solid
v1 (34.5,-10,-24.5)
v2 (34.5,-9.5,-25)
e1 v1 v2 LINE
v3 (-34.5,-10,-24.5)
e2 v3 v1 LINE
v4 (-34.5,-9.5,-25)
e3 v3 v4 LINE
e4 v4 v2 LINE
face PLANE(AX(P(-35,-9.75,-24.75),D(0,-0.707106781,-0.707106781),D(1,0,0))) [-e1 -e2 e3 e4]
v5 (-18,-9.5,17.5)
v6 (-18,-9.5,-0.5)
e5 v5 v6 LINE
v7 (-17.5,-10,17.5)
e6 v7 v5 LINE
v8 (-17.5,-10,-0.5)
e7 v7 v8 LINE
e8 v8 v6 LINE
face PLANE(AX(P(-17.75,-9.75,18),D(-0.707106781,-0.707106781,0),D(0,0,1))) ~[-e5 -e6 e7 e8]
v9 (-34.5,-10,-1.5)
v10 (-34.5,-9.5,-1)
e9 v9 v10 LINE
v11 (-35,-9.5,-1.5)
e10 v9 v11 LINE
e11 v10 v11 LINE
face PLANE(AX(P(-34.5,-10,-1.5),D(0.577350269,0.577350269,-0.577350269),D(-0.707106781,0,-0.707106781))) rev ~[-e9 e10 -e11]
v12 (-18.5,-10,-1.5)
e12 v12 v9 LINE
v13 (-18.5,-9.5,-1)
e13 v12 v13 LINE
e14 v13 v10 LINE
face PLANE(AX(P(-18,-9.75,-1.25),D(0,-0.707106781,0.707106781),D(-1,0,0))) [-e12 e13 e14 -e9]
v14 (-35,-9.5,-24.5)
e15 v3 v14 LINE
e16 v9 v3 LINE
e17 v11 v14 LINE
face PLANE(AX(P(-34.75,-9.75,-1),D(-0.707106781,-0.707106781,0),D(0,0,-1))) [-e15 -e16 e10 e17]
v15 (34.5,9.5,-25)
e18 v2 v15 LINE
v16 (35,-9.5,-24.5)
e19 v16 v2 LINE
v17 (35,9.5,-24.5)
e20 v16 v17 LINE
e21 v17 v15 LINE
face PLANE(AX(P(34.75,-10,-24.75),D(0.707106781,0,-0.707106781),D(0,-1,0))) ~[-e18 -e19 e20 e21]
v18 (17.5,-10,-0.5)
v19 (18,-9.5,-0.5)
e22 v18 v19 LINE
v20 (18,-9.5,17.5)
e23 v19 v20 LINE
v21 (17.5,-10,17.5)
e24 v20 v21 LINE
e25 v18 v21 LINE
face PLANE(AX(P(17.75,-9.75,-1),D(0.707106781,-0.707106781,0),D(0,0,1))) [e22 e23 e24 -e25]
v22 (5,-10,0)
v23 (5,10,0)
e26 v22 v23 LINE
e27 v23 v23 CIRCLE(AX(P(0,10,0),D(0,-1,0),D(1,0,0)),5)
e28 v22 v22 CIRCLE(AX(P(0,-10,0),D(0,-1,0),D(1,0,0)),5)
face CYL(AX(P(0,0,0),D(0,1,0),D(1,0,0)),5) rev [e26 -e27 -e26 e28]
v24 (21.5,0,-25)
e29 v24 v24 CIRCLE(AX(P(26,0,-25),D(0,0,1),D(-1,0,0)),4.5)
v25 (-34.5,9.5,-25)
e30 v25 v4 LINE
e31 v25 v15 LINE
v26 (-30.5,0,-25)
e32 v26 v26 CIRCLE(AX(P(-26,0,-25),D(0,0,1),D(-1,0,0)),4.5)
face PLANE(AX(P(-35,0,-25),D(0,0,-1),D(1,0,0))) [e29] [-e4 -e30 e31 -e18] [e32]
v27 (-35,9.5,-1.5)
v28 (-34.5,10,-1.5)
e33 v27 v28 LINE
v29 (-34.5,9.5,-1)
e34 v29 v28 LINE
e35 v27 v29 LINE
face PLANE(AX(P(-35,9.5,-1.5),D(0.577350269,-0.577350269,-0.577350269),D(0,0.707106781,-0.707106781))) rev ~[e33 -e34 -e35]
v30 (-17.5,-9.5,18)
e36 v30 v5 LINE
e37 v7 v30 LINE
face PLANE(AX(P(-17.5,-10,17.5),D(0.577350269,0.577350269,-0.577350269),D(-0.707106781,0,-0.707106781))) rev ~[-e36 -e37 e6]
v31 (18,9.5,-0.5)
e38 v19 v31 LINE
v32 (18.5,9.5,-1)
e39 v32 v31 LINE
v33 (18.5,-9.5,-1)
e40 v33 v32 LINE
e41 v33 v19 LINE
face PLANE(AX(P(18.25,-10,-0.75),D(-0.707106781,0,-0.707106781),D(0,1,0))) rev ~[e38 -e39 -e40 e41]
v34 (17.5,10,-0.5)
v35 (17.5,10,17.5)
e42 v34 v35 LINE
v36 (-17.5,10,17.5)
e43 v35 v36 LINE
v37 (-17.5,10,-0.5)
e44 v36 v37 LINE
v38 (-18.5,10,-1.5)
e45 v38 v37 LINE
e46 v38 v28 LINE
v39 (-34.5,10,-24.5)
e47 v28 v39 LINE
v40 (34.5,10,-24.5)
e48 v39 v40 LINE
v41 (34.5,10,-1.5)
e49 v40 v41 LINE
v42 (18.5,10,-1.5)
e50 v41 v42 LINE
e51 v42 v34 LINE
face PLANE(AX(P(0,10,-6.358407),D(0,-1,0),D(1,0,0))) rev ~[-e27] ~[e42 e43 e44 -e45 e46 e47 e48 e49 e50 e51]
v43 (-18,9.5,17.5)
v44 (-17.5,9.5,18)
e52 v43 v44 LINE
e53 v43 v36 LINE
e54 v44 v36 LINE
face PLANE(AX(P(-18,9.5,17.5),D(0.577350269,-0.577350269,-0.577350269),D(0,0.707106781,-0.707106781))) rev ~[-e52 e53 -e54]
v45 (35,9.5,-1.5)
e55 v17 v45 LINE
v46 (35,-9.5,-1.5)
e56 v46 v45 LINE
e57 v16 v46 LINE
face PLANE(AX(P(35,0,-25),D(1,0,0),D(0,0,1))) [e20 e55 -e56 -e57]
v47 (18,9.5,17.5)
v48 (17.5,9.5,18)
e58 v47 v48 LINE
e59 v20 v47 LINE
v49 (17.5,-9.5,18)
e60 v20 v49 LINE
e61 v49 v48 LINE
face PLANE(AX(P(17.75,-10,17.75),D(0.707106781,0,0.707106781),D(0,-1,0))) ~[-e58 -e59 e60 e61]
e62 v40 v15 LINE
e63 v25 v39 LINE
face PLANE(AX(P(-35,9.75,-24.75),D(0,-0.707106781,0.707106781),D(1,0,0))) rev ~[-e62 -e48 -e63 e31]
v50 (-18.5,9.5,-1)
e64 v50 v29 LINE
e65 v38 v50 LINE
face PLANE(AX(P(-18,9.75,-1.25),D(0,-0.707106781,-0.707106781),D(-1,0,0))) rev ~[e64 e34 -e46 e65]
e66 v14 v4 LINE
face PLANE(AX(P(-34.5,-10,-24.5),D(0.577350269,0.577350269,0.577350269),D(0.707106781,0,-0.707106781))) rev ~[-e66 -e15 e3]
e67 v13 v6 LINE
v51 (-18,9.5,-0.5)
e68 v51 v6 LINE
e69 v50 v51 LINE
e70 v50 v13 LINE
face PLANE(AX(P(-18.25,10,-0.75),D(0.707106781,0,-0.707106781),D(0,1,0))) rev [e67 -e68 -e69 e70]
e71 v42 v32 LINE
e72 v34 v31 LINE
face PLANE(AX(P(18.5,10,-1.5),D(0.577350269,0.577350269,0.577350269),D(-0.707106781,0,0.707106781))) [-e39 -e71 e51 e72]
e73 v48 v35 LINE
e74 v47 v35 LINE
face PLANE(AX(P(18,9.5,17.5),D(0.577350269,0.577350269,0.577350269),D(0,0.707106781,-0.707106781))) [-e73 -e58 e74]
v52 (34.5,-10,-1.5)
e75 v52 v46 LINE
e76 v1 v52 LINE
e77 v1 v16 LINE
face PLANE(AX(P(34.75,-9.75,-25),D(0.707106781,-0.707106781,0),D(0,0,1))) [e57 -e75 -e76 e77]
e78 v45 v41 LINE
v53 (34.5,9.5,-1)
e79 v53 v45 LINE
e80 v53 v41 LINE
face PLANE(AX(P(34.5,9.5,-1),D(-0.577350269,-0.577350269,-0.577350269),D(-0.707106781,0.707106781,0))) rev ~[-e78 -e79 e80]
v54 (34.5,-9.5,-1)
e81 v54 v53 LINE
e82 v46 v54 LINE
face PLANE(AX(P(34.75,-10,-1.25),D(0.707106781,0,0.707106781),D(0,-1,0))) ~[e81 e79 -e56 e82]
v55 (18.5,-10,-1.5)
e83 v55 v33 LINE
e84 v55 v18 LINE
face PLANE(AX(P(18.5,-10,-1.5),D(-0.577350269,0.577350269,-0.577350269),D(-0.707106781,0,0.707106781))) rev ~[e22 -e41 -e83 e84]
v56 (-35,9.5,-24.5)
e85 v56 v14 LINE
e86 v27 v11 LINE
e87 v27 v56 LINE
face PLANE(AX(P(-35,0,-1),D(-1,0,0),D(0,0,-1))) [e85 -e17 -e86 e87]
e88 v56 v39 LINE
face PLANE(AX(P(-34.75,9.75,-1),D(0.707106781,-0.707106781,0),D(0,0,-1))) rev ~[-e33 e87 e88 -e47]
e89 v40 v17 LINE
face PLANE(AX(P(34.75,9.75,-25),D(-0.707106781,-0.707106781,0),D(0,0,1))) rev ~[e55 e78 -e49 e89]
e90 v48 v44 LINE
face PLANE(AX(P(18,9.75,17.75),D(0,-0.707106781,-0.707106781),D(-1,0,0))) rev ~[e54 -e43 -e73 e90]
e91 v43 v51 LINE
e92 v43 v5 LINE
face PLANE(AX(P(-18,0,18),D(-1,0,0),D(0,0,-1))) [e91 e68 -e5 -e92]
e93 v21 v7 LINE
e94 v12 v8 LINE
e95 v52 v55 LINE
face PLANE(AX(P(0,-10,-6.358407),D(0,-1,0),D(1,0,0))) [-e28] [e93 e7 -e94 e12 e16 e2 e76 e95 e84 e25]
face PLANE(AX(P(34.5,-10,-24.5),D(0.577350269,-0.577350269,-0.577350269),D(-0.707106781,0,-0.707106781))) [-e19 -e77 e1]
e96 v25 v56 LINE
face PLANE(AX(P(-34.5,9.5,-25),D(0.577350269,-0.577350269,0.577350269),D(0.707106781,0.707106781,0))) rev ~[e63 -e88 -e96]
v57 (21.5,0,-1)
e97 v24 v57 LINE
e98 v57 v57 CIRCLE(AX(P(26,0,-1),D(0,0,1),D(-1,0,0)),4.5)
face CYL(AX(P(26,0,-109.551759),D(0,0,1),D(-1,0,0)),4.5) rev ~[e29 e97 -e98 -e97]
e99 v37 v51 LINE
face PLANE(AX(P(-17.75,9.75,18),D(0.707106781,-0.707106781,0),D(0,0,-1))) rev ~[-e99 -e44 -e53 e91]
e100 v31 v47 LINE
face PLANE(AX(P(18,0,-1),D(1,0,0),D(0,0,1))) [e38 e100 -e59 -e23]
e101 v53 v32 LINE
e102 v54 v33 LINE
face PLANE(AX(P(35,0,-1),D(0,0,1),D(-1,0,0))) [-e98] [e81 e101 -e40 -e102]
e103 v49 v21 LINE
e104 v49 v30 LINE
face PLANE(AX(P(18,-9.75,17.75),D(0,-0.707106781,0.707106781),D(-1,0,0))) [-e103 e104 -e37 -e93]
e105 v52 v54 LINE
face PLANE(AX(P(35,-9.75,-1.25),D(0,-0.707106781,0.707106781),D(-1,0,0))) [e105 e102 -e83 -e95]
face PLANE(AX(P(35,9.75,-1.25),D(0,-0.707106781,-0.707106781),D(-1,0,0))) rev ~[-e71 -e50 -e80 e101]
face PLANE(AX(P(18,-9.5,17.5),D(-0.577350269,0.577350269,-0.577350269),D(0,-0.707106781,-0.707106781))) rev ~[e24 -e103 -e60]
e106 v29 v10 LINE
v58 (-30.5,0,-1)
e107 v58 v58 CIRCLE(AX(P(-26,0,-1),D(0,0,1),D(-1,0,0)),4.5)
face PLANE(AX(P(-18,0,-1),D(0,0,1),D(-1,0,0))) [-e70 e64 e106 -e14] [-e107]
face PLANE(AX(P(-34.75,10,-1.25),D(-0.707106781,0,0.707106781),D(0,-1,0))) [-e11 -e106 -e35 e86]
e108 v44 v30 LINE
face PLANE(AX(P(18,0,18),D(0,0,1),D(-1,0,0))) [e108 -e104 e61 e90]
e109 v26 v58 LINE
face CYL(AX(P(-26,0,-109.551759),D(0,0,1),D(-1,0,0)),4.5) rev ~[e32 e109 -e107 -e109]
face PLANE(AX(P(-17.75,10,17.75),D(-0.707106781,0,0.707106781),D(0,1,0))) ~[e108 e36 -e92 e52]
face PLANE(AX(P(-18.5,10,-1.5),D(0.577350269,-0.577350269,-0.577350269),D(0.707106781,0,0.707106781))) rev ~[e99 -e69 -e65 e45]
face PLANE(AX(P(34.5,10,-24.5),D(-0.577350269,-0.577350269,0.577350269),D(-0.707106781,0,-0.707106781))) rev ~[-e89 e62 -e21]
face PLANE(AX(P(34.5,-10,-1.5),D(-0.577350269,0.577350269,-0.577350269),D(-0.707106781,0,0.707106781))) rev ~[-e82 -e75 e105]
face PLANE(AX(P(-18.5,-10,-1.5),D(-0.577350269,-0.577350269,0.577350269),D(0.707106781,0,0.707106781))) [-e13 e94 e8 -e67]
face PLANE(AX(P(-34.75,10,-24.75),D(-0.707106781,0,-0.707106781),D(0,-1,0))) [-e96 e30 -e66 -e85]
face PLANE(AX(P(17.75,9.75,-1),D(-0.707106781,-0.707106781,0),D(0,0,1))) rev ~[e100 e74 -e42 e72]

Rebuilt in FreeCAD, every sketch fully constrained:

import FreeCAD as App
import Part
import Sketcher
from FreeCAD import Vector


def edges_at(feature, points):
    """Names of the edges that pass closest to the given points."""
    edges = feature.Shape.Edges
    near = lambda p: min(range(len(edges)), key=lambda i: edges[i].distToShape(Part.Vertex(*p))[0])
    return sorted({f"Edge{near(p) + 1}" for p in points})


def add_polygon(sketch, points):
    """Adds a closed chain of lines whose ends are joined by coincident constraints."""
    first, n = sketch.GeometryCount, len(points)
    for a, b in zip(points, points[1:] + points[:1]):
        sketch.addGeometry(Part.LineSegment(App.Vector(*a, 0), App.Vector(*b, 0)), False)
    for i in range(n):
        sketch.addConstraint(Sketcher.Constraint("Coincident", first + i, 2, first + (i + 1) % n, 1))

doc = App.newDocument("Part")
params = doc.addObject("Spreadsheet::Sheet", "Params")
for row, (alias, value) in enumerate([
    ("sketch1_diameter", "10 mm"),
    ("sketch1_width", "36 mm"),
    ("sketch1_width2", "17 mm"),
    ("sketch1_height", "19 mm"),
    ("sketch1_height2", "24 mm"),
    ("pad1_length", "20 mm"),
    ("chamfer_size", "0.5 mm"),
    ("sketch2_diameter", "9 mm"),
    ("hole_diameter", "9 mm"),
], start=1):
    params.set(f"A{row}", alias)
    params.set(f"B{row}", "=" + value)
    params.setAlias(f"B{row}", alias)

body = doc.addObject("PartDesign::Body", "Body")

sketch1 = body.newObject("Sketcher::SketchObject", "Sketch")
sketch1.AttachmentSupport = (doc.getObject("XZ_Plane"), [""])
sketch1.MapMode = "FlatFace"
add_polygon(sketch1, [(18, 18), (-18, 18), (-18, -1), (-35, -1), (-35, -25), (35, -25), (35, -1), (18, -1)])
sketch1.addGeometry(Part.Circle(Vector(0, 0, 0), Vector(0, 0, 1), 5), False)
sketch1.addConstraint([
    Sketcher.Constraint("Horizontal", 0),
    Sketcher.Constraint("Vertical", 1),
    Sketcher.Constraint("Horizontal", 2),
    Sketcher.Constraint("Vertical", 3),
    Sketcher.Constraint("Horizontal", 4),
    Sketcher.Constraint("Vertical", 5),
    Sketcher.Constraint("Horizontal", 6),
    Sketcher.Constraint("Vertical", 7),
    Sketcher.Constraint("Coincident", 8, 3, -1, 1),
    Sketcher.Constraint("Symmetric", 2, 2, 5, 2, -2),
    Sketcher.Constraint("Equal", 2, 6),
    Sketcher.Constraint("Diameter", 8, 10.0),
    Sketcher.Constraint("DistanceX", 0, 2, 0, 1, 36.0),
    Sketcher.Constraint("DistanceX", 2, 2, 2, 1, 17.0),
    Sketcher.Constraint("DistanceY", 1, 2, 1, 1, 19.0),
    Sketcher.Constraint("DistanceY", 3, 2, 3, 1, 24.0),
    Sketcher.Constraint("DistanceY", -1, 1, 0, 2, 18.0),
])
sketch1.setExpression("Constraints[19]", "Params.sketch1_diameter")
sketch1.setExpression("Constraints[20]", "Params.sketch1_width")
sketch1.setExpression("Constraints[21]", "Params.sketch1_width2")
sketch1.setExpression("Constraints[22]", "Params.sketch1_height")
sketch1.setExpression("Constraints[23]", "Params.sketch1_height2")
pad1 = body.newObject("PartDesign::Pad", "Pad")
pad1.Profile = sketch1
pad1.setExpression("Length", "Params.pad1_length")
pad1.Midplane = True
doc.recompute()

chamfer = body.newObject("PartDesign::Chamfer", "Chamfer")
chamfer.Base = (pad1, edges_at(pad1, [
    (0, 10, 18),
    (-18, 0, 18),
    (0, -10, 18),
    (18, 0, 18),
    (-18, 0, -1),
    (-26.5, 10, -1),
    (-35, 0, -1),
    (-26.5, -10, -1),
    (-18, 10, 8.5),
    (-18, -10, 8.5),
    (-35, 10, -13),
    (-35, 0, -25),
    (-35, -10, -13),
    (35, 0, -25),
    (35, 10, -13),
    (35, 0, -1),
    (35, -10, -13),
    (18, 10, 8.5),
    (18, -10, 8.5),
    (18, 0, -1),
    (26.5, 10, -1),
    (26.5, -10, -1),
    (0, 10, -25),
    (0, -10, -25),
]))
chamfer.setExpression("Size", "Params.chamfer_size")

sketch2 = body.newObject("Sketcher::SketchObject", "Sketch001")
sketch2.AttachmentSupport = (doc.getObject("XY_Plane"), [""])
sketch2.MapMode = "FlatFace"
sketch2.AttachmentOffset = App.Placement(Vector(0, 0, -25), App.Rotation())
sketch2.addGeometry([
    Part.Circle(Vector(-26, 0, 0), Vector(0, 0, 1), 4.5),
    Part.Circle(Vector(26, 0, 0), Vector(0, 0, 1), 4.5),
], False)
sketch2.addConstraint([
    Sketcher.Constraint("Equal", 0, 1),
    Sketcher.Constraint("Symmetric", 0, 3, 1, 3, -1, 1),
    Sketcher.Constraint("PointOnObject", 0, 3, -1),
    Sketcher.Constraint("Diameter", 0, 9.0),
    Sketcher.Constraint("DistanceX", 0, 3, -1, 1, 26.0),
])
sketch2.setExpression("Constraints[3]", "Params.sketch2_diameter")
doc.recompute()
hole = body.newObject("PartDesign::Hole", "Hole")
hole.Profile = sketch2
hole.ThreadType = "None"
hole.setExpression("Diameter", "Params.hole_diameter")
hole.DepthType = "ThroughAll"
hole.Reversed = True

doc.recompute()
